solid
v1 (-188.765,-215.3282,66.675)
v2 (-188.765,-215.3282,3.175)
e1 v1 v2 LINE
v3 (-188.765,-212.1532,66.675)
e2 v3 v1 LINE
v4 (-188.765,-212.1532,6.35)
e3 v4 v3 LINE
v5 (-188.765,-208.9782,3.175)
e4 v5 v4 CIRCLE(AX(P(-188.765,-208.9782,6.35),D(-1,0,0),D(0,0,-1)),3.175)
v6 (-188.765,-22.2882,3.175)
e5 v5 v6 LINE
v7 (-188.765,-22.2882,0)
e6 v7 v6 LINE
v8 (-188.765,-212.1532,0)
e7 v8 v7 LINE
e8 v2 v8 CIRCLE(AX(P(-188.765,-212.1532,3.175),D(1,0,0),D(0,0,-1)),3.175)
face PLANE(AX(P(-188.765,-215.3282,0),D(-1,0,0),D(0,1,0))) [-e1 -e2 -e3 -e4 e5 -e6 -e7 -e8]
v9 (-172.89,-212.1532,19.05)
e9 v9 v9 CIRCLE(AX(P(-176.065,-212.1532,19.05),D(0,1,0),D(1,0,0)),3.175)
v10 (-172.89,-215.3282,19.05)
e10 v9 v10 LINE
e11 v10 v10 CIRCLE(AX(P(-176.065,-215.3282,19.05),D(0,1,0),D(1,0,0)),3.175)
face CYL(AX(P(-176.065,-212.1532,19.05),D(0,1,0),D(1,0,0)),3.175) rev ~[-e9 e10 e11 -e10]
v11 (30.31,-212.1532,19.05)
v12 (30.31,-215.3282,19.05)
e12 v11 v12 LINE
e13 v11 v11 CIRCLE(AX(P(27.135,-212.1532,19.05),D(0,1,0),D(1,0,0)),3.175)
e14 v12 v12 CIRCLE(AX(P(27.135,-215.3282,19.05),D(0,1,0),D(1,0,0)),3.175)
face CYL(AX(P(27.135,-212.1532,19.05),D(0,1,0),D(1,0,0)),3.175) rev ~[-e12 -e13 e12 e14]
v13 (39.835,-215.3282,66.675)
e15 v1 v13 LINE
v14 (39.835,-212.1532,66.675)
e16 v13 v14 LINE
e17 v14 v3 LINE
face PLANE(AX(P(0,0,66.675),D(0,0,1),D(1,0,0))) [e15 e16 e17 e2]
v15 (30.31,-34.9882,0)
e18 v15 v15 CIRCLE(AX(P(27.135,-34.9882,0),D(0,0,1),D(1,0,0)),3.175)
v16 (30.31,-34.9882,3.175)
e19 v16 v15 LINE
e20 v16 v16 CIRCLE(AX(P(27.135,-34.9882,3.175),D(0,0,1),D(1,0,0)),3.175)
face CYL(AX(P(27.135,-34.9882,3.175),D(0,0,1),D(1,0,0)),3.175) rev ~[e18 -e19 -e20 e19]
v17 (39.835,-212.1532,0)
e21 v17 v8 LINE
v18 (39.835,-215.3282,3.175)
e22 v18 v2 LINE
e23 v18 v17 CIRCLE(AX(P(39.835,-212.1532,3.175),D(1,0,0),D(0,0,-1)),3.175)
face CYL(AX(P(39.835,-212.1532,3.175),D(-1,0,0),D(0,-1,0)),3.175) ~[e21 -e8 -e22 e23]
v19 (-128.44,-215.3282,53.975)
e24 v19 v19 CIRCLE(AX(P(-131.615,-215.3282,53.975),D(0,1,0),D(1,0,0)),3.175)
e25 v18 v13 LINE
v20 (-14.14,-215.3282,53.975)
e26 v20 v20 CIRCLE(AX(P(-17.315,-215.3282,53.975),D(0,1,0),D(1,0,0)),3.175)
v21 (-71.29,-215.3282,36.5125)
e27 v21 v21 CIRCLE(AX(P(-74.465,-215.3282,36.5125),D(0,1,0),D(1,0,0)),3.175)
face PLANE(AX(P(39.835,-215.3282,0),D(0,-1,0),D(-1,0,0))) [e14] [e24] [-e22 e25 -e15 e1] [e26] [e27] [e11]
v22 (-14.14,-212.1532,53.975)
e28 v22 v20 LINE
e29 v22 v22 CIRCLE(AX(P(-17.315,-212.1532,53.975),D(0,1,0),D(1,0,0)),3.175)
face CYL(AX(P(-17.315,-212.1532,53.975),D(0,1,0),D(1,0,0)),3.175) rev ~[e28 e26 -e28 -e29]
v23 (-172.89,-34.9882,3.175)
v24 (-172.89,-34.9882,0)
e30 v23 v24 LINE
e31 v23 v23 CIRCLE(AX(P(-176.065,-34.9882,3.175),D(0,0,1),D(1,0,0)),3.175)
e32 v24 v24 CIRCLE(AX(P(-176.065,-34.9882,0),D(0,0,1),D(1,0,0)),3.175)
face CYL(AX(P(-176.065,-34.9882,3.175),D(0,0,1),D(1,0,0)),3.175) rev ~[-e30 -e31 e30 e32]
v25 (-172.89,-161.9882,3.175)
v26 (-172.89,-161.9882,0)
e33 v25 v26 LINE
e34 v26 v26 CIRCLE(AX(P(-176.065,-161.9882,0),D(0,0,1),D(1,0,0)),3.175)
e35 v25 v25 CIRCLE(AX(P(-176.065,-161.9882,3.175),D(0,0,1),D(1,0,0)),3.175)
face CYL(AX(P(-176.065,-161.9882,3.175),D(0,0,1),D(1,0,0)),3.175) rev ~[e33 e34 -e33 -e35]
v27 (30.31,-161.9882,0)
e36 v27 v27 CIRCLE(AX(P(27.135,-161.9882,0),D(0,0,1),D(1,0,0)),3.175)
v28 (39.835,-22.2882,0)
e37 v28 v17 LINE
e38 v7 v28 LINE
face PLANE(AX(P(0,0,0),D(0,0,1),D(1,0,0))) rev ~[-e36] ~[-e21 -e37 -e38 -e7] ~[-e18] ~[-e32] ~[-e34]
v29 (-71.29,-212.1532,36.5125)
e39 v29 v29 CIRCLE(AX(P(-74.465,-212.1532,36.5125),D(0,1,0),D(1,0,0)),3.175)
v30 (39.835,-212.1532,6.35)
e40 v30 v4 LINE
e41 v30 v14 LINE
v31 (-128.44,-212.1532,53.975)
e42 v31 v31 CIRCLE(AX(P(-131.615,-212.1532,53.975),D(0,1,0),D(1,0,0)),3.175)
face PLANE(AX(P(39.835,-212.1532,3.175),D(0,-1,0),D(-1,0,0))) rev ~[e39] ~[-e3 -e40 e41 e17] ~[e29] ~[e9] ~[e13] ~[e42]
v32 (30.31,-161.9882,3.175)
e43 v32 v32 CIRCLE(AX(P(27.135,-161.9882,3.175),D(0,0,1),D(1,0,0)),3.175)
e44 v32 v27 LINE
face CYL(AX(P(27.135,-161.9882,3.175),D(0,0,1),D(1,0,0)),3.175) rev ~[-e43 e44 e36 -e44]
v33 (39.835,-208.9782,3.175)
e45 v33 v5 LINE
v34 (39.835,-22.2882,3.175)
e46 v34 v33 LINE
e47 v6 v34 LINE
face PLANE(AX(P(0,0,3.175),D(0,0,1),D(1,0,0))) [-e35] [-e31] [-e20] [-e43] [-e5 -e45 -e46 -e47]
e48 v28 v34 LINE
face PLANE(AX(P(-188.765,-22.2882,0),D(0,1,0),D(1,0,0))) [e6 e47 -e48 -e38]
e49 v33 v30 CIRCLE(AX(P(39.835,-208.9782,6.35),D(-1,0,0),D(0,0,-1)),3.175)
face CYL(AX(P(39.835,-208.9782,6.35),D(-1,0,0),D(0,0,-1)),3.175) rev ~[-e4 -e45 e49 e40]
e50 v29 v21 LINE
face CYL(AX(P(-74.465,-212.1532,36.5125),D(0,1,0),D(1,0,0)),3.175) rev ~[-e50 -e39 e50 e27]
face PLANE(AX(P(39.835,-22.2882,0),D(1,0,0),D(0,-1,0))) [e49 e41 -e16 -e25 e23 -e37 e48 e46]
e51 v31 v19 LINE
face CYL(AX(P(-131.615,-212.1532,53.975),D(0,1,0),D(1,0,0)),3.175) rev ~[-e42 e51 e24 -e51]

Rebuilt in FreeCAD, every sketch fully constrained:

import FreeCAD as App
import Part
import Sketcher

V = App.Vector
Q = App.Units.Quantity


def edges_at(feature, points):
    """Names of the edges that pass closest to the given points."""
    edges = feature.Shape.Edges
    near = lambda p: min(range(len(edges)), key=lambda i: edges[i].distToShape(Part.Vertex(*p))[0])
    return sorted({f"Edge{near(p) + 1}" for p in points})

doc = App.newDocument("Part")
body = doc.addObject("PartDesign::Body", "Body")

# Sketch on XY plane
sketch1 = doc.addObject("Sketcher::SketchObject", "Sketch")
body.addObject(sketch1)
sketch1.AttachmentSupport = (doc.XY_Plane, [""])
sketch1.MapMode = "FlatFace"
sketch1.addGeometry([
    Part.LineSegment(V(-189, -215, 0), V(40, -215, 0)),
    Part.LineSegment(V(40, -215, 0), V(40, -22, 0)),
    Part.LineSegment(V(40, -22, 0), V(-189, -22, 0)),
    Part.LineSegment(V(-189, -22, 0), V(-189, -215, 0)),
], False)
sketch1.addConstraint([
    Sketcher.Constraint("Coincident", 0, 2, 1, 1),
    Sketcher.Constraint("Coincident", 1, 2, 2, 1),
    Sketcher.Constraint("Coincident", 2, 2, 3, 1),
    Sketcher.Constraint("Coincident", 3, 2, 0, 1),
    Sketcher.Constraint("Horizontal", 0),
    Sketcher.Constraint("Vertical", 1),
    Sketcher.Constraint("Horizontal", 2),
    Sketcher.Constraint("Vertical", 3),
    Sketcher.Constraint("DistanceX", 0, 1, 0, 2, Q("9 in")),
    Sketcher.Constraint("DistanceY", 1, 1, 1, 2, Q("7.6 in")),
    Sketcher.Constraint("DistanceX", -1, 1, 0, 2, Q("1.5683 in")),
    Sketcher.Constraint("DistanceY", 0, 2, -1, 1, Q("8.4775 in")),
])
pad1 = doc.addObject("PartDesign::Pad", "Pad")
body.addObject(pad1)
pad1.Profile = sketch1
pad1.Length = Q("0.125 in")

# Sketch on XY plane
sketch2 = doc.addObject("Sketcher::SketchObject", "Sketch001")
body.addObject(sketch2)
sketch2.AttachmentSupport = (doc.XY_Plane, [""])
sketch2.MapMode = "FlatFace"
sketch2.AttachmentOffset = App.Placement(V(0, 0, 0.125 * 25.4), App.Rotation())
sketch2.addGeometry([
    Part.LineSegment(V(-188.8, -212.2, 0), V(-188.8, -215.3, 0)),
    Part.LineSegment(V(-188.8, -215.3, 0), V(39.8, -215.3, 0)),
    Part.LineSegment(V(39.8, -215.3, 0), V(39.8, -212.2, 0)),
    Part.LineSegment(V(39.8, -212.2, 0), V(-188.8, -212.2, 0)),
], False)
sketch2.addConstraint([
    Sketcher.Constraint("Coincident", 0, 2, 1, 1),
    Sketcher.Constraint("Coincident", 1, 2, 2, 1),
    Sketcher.Constraint("Coincident", 2, 2, 3, 1),
    Sketcher.Constraint("Coincident", 3, 2, 0, 1),
    Sketcher.Constraint("Vertical", 0),
    Sketcher.Constraint("Horizontal", 1),
    Sketcher.Constraint("Vertical", 2),
    Sketcher.Constraint("Horizontal", 3),
    Sketcher.Constraint("DistanceX", 1, 1, 1, 2, Q("9 in")),
    Sketcher.Constraint("DistanceY", 0, 2, 0, 1, Q("0.125 in")),
    Sketcher.Constraint("DistanceX", 0, 2, -1, 1, Q("7.4317 in")),
    Sketcher.Constraint("DistanceY", 0, 2, -1, 1, Q("8.4775 in")),
])
pad2 = doc.addObject("PartDesign::Pad", "Pad001")
body.addObject(pad2)
pad2.Profile = sketch2
pad2.Length = Q("2.5 in")
doc.recompute()

fillet = doc.addObject("PartDesign::Fillet", "Fillet")
body.addObject(fillet)
fillet.Base = (pad2, edges_at(pad2, [(-74.465, -212.153, 3.175), (-74.465, -215.328, 0)]))
fillet.Radius = Q("0.125 in")

# Sketch on XZ plane
sketch3 = doc.addObject("Sketcher::SketchObject", "Sketch002")
body.addObject(sketch3)
sketch3.AttachmentSupport = (doc.XZ_Plane, [""])
sketch3.MapMode = "FlatFace"
sketch3.AttachmentOffset = App.Placement(V(0, 0, 8.3524882 * 25.4), App.Rotation())
sketch3.addGeometry([
    Part.Circle(V(-176.1, 19.1, 0), V(0, 0, 1), 3.2),  # 0
    Part.Circle(V(-74.5, 36.5, 0), V(0, 0, 1), 3.2),  # 1
    Part.Circle(V(27.1, 19.1, 0), V(0, 0, 1), 3.2),  # 2
    Part.Circle(V(-131.6, 54, 0), V(0, 0, 1), 3.2),  # 3
    Part.Circle(V(-17.3, 54, 0), V(0, 0, 1), 3.2),  # 4
], False)
sketch3.addConstraint([
    Sketcher.Constraint("Equal", 0, 1),
    Sketcher.Constraint("Equal", 1, 2),
    Sketcher.Constraint("Equal", 2, 3),
    Sketcher.Constraint("Equal", 3, 4),
    Sketcher.Constraint("Horizontal", 0, 3, 2, 3),
    Sketcher.Constraint("Horizontal", 3, 3, 4, 3),
    Sketcher.Constraint("Diameter", 0, Q("0.25 in")),
    Sketcher.Constraint("DistanceX", 3, 3, 4, 3, Q("4.5 in")),
    Sketcher.Constraint("DistanceX", 3, 3, 1, 3, Q("2.25 in")),
    Sketcher.Constraint("DistanceX", 0, 3, 1, 3, Q("4 in")),
    Sketcher.Constraint("DistanceX", 1, 3, 2, 3, Q("4 in")),
    Sketcher.Constraint("DistanceY", -1, 1, 0, 3, Q("0.75 in")),
    Sketcher.Constraint("DistanceY", -1, 1, 1, 3, Q("1.4375 in")),
    Sketcher.Constraint("DistanceY", -1, 1, 3, 3, Q("2.125 in")),
    Sketcher.Constraint("DistanceX", 0, 3, -1, 1, Q("6.9317 in")),
])
pocket1 = doc.addObject("PartDesign::Pocket", "Pocket")
body.addObject(pocket1)
pocket1.Profile = sketch3
pocket1.Length = Q("2.5 in")
pocket1.Reversed = True

# Sketch on XY plane
sketch4 = doc.addObject("Sketcher::SketchObject", "Sketch003")
body.addObject(sketch4)
sketch4.AttachmentSupport = (doc.XY_Plane, [""])
sketch4.MapMode = "FlatFace"
sketch4.AttachmentOffset = App.Placement(V(0, 0, 0.125 * 25.4), App.Rotation())
sketch4.addGeometry([
    Part.Circle(V(-176.1, -35, 0), V(0, 0, 1), 3.2),
    Part.Circle(V(27.1, -35, 0), V(0, 0, 1), 3.2),
    Part.Circle(V(-176.1, -162, 0), V(0, 0, 1), 3.2),
    Part.Circle(V(27.1, -162, 0), V(0, 0, 1), 3.2),
], False)
sketch4.addConstraint([
    Sketcher.Constraint("Equal", 0, 1),
    Sketcher.Constraint("Equal", 1, 2),
    Sketcher.Constraint("Equal", 2, 3),
    Sketcher.Constraint("Horizontal", 0, 3, 1, 3),
    Sketcher.Constraint("Horizontal", 2, 3, 3, 3),
    Sketcher.Constraint("Vertical", 0, 3, 2, 3),
    Sketcher.Constraint("Vertical", 1, 3, 3, 3),
    Sketcher.Constraint("Diameter", 0, Q("0.25 in")),
    Sketcher.Constraint("DistanceY", 2, 3, 0, 3, Q("5 in")),
    Sketcher.Constraint("DistanceX", 0, 3, 1, 3, Q("8 in")),
    Sketcher.Constraint("DistanceX", 0, 3, -1, 1, Q("6.9317 in")),
    Sketcher.Constraint("DistanceY", 0, 3, -1, 1, Q("1.3775 in")),
])
pocket2 = doc.addObject("PartDesign::Pocket", "Pocket001")
body.addObject(pocket2)
pocket2.Profile = sketch4
pocket2.Length = Q("2.5 in")

doc.recompute()
